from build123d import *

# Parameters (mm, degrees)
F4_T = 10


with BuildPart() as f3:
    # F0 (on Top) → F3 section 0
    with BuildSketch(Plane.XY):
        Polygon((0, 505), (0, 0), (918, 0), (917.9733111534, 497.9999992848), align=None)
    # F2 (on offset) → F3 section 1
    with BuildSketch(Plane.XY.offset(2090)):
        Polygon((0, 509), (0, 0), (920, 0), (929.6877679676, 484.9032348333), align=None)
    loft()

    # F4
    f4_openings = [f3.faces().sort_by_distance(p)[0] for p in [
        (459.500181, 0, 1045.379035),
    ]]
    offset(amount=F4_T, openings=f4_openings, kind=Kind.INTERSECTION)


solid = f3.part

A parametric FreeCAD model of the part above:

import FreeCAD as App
import Part
import Sketcher
from FreeCAD import Vector


def faces_at(feature, points):
    """Names of the faces that lie closest to the given points."""
    faces = feature.Shape.Faces
    near = lambda p: min(range(len(faces)), key=lambda i: faces[i].distToShape(Part.Vertex(*p))[0])
    return sorted({f"Face{near(p) + 1}" for p in points})


def add_polygon(sketch, points):
    """Adds a closed chain of lines whose ends are joined by coincident constraints."""
    first, n = sketch.GeometryCount, len(points)
    for a, b in zip(points, points[1:] + points[:1]):
        sketch.addGeometry(Part.LineSegment(App.Vector(*a, 0), App.Vector(*b, 0)), False)
    for i in range(n):
        sketch.addConstraint(Sketcher.Constraint("Coincident", first + i, 2, first + (i + 1) % n, 1))

doc = App.newDocument("Part")
body = doc.addObject("PartDesign::Body", "Body")

# Sketch on XY plane
sketch1 = body.newObject("Sketcher::SketchObject", "Sketch")
sketch1.AttachmentSupport = (doc.getObject("XY_Plane"), [""])
sketch1.MapMode = "FlatFace"
add_polygon(sketch1, [(0, 505), (0, 0), (918, 0), (918, 498)])  # lines 0-3
sketch1.addConstraint([
    Sketcher.Constraint("Vertical", 0),
    Sketcher.Constraint("Horizontal", 1),
    Sketcher.Constraint("Coincident", 0, 2, -1, 1),
    Sketcher.Constraint("DistanceX", 1, 1, 1, 2, 918.0),
    Sketcher.Constraint("DistanceY", 0, 2, 0, 1, 505.0),
    Sketcher.Constraint("Distance", 2, 498.0),
    Sketcher.Constraint("Distance", 3, 918.0),
])

# Sketch on XY plane
sketch2 = body.newObject("Sketcher::SketchObject", "Sketch001")
sketch2.AttachmentSupport = (doc.getObject("XY_Plane"), [""])
sketch2.MapMode = "FlatFace"
sketch2.AttachmentOffset = App.Placement(Vector(0, 0, 2090), App.Rotation())
add_polygon(sketch2, [(0, 509), (0, 0), (920, 0), (930, 485)])  # lines 0-3
sketch2.addConstraint([
    Sketcher.Constraint("Vertical", 0),
    Sketcher.Constraint("Horizontal", 1),
    Sketcher.Constraint("Coincident", 0, 2, -1, 1),
    Sketcher.Constraint("DistanceX", 1, 1, 1, 2, 920.0),
    Sketcher.Constraint("DistanceY", 0, 2, 0, 1, 509.0),
    Sketcher.Constraint("Distance", 2, 485.0),
    Sketcher.Constraint("Distance", 3, 930.0),
])

additiveloft = body.newObject("PartDesign::AdditiveLoft", "AdditiveLoft")
additiveloft.Profile = sketch1
additiveloft.Sections = [sketch2]
doc.recompute()

thickness = body.newObject("PartDesign::Thickness", "Thickness")
thickness.Base = (additiveloft, faces_at(additiveloft, [(459.5, 0, 1045)]))
thickness.Value = 10
thickness.Reversed = False
thickness.Join = "Intersection"

doc.recompute()
